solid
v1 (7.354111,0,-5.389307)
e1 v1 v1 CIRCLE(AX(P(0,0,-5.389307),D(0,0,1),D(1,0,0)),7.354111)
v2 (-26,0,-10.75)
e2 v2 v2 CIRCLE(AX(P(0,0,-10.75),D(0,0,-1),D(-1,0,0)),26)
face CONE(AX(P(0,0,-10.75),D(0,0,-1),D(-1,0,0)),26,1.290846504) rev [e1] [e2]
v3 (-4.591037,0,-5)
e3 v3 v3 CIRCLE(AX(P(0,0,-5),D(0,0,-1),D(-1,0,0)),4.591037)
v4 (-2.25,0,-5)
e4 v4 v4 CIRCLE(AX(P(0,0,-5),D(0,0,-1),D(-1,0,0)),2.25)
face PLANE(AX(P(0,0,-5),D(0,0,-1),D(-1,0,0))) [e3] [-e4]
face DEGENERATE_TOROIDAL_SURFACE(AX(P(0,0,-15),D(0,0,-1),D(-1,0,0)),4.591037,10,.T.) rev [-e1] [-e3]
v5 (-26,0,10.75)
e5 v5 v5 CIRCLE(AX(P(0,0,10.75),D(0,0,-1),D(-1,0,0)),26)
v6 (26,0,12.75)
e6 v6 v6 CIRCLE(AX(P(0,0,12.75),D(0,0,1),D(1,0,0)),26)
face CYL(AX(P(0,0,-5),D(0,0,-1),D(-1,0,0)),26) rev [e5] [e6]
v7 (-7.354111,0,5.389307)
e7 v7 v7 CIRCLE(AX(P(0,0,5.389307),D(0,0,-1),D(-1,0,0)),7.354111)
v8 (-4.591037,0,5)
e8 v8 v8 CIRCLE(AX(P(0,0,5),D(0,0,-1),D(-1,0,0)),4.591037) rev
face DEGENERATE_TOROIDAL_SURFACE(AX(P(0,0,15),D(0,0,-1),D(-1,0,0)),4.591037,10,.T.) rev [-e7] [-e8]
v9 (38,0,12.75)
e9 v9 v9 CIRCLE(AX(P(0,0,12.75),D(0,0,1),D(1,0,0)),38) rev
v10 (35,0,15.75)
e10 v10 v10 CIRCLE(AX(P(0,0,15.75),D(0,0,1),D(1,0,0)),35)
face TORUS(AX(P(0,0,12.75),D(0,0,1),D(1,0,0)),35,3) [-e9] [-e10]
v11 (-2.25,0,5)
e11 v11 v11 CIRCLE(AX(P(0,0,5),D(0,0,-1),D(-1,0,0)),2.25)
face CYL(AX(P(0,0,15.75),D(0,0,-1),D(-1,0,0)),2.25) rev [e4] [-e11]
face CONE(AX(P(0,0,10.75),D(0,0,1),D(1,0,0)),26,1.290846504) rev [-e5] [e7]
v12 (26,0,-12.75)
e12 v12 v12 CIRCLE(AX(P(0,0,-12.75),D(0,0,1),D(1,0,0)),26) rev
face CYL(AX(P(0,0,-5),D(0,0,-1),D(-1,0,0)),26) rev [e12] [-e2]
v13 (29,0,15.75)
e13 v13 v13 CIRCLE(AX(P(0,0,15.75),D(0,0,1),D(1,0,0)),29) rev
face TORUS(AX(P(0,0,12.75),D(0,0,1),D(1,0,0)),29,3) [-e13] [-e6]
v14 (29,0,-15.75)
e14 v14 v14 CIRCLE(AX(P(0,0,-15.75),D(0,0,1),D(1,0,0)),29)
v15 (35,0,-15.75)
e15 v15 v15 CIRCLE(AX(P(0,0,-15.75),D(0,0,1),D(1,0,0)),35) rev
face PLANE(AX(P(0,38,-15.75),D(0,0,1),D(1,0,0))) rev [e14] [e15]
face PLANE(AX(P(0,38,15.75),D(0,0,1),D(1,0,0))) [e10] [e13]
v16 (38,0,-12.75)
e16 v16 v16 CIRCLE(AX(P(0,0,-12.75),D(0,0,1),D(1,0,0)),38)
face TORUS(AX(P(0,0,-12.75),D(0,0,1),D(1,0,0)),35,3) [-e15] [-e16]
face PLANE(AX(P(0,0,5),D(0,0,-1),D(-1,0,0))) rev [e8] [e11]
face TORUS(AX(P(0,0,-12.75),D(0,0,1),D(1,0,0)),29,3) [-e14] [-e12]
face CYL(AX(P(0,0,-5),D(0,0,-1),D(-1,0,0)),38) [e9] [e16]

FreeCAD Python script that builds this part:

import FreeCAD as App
import Part
import Sketcher
from FreeCAD import Vector
Q = App.Units.Quantity


def edges_at(feature, points):
    """Names of the edges that pass closest to the given points."""
    edges = feature.Shape.Edges
    near = lambda p: min(range(len(edges)), key=lambda i: edges[i].distToShape(Part.Vertex(*p))[0])
    return sorted({f"Edge{near(p) + 1}" for p in points})

doc = App.newDocument("Part")
body = doc.addObject("PartDesign::Body", "Body")

# Sketch on YZ plane
sketch1 = doc.addObject("Sketcher::SketchObject", "Sketch")
body.addObject(sketch1)
sketch1.AttachmentSupport = (doc.YZ_Plane, [""])
sketch1.MapMode = "FlatFace"
sketch1.addGeometry([
    Part.LineSegment(Vector(38, -16, 0), Vector(38, 16, 0)),  # 0
    Part.LineSegment(Vector(38, 16, 0), Vector(26, 16, 0)),  # 1
    Part.LineSegment(Vector(26, 16, 0), Vector(26, 11, 0)),  # 2
    Part.LineSegment(Vector(26, 11, 0), Vector(6, 5, 0)),  # 3
    Part.LineSegment(Vector(6, 5, 0), Vector(0, 5, 0)),  # 4
    Part.LineSegment(Vector(0, 5, 0), Vector(0, -5, 0)),  # 5
    Part.LineSegment(Vector(0, -5, 0), Vector(6, -5, 0)),  # 6
    Part.LineSegment(Vector(6, -5, 0), Vector(26, -11, 0)),  # 7
    Part.LineSegment(Vector(26, -11, 0), Vector(26, -16, 0)),  # 8
    Part.LineSegment(Vector(26, -16, 0), Vector(38, -16, 0)),  # 9
], False)
sketch1.addConstraint([
    Sketcher.Constraint("Coincident", 0, 2, 1, 1),
    Sketcher.Constraint("Coincident", 1, 2, 2, 1),
    Sketcher.Constraint("Coincident", 2, 2, 3, 1),
    Sketcher.Constraint("Coincident", 3, 2, 4, 1),
    Sketcher.Constraint("Coincident", 4, 2, 5, 1),
    Sketcher.Constraint("Coincident", 5, 2, 6, 1),
    Sketcher.Constraint("Coincident", 6, 2, 7, 1),
    Sketcher.Constraint("Coincident", 7, 2, 8, 1),
    Sketcher.Constraint("Coincident", 8, 2, 9, 1),
    Sketcher.Constraint("Coincident", 9, 2, 0, 1),
    Sketcher.Constraint("Vertical", 0),
    Sketcher.Constraint("Horizontal", 1),
    Sketcher.Constraint("Vertical", 2),
    Sketcher.Constraint("Horizontal", 4),
    Sketcher.Constraint("Vertical", 5),
    Sketcher.Constraint("Horizontal", 6),
    Sketcher.Constraint("Vertical", 8),
    Sketcher.Constraint("Horizontal", 9),
    Sketcher.Constraint("Symmetric", 4, 2, 5, 2, -1, 1),
    Sketcher.Constraint("Symmetric", 2, 2, 7, 2, -1),
    Sketcher.Constraint("Vertical", 3, 2, 6, 2),
    Sketcher.Constraint("Equal", 2, 8),
    Sketcher.Constraint("DistanceX", 1, 2, 1, 1, Q("12 mm")),
    Sketcher.Constraint("DistanceX", 4, 2, 4, 1, Q("6 mm")),
    Sketcher.Constraint("DistanceY", 2, 2, 2, 1, Q("5 mm")),
    Sketcher.Constraint("DistanceY", 5, 2, 5, 1, Q("10 mm")),
    Sketcher.Constraint("DistanceY", 0, 1, 0, 2, Q("31.5 mm")),
    Sketcher.Constraint("DistanceX", -1, 1, 0, 2, Q("38 mm")),
])
revolution = doc.addObject("PartDesign::Revolution", "Revolution")
body.addObject(revolution)
revolution.Profile = sketch1
revolution.ReferenceAxis = (sketch1, ["V_Axis"])
revolution.Angle = 360

# Sketch on XY plane
sketch2 = doc.addObject("Sketcher::SketchObject", "Sketch001")
body.addObject(sketch2)
sketch2.AttachmentSupport = (doc.XY_Plane, [""])
sketch2.MapMode = "FlatFace"
sketch2.AttachmentOffset = App.Placement(Vector(0, 0, -5), App.Rotation())
sketch2.addGeometry(Part.Circle(Vector(0, 0, 0), Vector(0, 0, 1), 2.2), False)
sketch2.addConstraint([
    Sketcher.Constraint("Coincident", 0, 3, -1, 1),
    Sketcher.Constraint("Diameter", 0, Q("4.5 mm")),
])
pocket1 = doc.addObject("PartDesign::Pocket", "Pocket")
body.addObject(pocket1)
pocket1.Profile = sketch2
pocket1.Type = "ThroughAll"
pocket1.Reversed = True
doc.recompute()

fillet = doc.addObject("PartDesign::Fillet", "Fillet")
body.addObject(fillet)
fillet.Base = (pocket1, edges_at(pocket1, [
    (0, -38, 15.75),
    (0, -26, 15.75),
    (0, -26, -15.75),
    (0, -38, -15.75),
]))
fillet.Radius = 3
doc.recompute()

fillet2 = doc.addObject("PartDesign::Fillet", "Fillet001")
body.addObject(fillet2)
fillet2.Base = (fillet, edges_at(fillet, [(0, -6, 5), (0, -6, -5)]))
fillet2.Radius = 10

doc.recompute()
